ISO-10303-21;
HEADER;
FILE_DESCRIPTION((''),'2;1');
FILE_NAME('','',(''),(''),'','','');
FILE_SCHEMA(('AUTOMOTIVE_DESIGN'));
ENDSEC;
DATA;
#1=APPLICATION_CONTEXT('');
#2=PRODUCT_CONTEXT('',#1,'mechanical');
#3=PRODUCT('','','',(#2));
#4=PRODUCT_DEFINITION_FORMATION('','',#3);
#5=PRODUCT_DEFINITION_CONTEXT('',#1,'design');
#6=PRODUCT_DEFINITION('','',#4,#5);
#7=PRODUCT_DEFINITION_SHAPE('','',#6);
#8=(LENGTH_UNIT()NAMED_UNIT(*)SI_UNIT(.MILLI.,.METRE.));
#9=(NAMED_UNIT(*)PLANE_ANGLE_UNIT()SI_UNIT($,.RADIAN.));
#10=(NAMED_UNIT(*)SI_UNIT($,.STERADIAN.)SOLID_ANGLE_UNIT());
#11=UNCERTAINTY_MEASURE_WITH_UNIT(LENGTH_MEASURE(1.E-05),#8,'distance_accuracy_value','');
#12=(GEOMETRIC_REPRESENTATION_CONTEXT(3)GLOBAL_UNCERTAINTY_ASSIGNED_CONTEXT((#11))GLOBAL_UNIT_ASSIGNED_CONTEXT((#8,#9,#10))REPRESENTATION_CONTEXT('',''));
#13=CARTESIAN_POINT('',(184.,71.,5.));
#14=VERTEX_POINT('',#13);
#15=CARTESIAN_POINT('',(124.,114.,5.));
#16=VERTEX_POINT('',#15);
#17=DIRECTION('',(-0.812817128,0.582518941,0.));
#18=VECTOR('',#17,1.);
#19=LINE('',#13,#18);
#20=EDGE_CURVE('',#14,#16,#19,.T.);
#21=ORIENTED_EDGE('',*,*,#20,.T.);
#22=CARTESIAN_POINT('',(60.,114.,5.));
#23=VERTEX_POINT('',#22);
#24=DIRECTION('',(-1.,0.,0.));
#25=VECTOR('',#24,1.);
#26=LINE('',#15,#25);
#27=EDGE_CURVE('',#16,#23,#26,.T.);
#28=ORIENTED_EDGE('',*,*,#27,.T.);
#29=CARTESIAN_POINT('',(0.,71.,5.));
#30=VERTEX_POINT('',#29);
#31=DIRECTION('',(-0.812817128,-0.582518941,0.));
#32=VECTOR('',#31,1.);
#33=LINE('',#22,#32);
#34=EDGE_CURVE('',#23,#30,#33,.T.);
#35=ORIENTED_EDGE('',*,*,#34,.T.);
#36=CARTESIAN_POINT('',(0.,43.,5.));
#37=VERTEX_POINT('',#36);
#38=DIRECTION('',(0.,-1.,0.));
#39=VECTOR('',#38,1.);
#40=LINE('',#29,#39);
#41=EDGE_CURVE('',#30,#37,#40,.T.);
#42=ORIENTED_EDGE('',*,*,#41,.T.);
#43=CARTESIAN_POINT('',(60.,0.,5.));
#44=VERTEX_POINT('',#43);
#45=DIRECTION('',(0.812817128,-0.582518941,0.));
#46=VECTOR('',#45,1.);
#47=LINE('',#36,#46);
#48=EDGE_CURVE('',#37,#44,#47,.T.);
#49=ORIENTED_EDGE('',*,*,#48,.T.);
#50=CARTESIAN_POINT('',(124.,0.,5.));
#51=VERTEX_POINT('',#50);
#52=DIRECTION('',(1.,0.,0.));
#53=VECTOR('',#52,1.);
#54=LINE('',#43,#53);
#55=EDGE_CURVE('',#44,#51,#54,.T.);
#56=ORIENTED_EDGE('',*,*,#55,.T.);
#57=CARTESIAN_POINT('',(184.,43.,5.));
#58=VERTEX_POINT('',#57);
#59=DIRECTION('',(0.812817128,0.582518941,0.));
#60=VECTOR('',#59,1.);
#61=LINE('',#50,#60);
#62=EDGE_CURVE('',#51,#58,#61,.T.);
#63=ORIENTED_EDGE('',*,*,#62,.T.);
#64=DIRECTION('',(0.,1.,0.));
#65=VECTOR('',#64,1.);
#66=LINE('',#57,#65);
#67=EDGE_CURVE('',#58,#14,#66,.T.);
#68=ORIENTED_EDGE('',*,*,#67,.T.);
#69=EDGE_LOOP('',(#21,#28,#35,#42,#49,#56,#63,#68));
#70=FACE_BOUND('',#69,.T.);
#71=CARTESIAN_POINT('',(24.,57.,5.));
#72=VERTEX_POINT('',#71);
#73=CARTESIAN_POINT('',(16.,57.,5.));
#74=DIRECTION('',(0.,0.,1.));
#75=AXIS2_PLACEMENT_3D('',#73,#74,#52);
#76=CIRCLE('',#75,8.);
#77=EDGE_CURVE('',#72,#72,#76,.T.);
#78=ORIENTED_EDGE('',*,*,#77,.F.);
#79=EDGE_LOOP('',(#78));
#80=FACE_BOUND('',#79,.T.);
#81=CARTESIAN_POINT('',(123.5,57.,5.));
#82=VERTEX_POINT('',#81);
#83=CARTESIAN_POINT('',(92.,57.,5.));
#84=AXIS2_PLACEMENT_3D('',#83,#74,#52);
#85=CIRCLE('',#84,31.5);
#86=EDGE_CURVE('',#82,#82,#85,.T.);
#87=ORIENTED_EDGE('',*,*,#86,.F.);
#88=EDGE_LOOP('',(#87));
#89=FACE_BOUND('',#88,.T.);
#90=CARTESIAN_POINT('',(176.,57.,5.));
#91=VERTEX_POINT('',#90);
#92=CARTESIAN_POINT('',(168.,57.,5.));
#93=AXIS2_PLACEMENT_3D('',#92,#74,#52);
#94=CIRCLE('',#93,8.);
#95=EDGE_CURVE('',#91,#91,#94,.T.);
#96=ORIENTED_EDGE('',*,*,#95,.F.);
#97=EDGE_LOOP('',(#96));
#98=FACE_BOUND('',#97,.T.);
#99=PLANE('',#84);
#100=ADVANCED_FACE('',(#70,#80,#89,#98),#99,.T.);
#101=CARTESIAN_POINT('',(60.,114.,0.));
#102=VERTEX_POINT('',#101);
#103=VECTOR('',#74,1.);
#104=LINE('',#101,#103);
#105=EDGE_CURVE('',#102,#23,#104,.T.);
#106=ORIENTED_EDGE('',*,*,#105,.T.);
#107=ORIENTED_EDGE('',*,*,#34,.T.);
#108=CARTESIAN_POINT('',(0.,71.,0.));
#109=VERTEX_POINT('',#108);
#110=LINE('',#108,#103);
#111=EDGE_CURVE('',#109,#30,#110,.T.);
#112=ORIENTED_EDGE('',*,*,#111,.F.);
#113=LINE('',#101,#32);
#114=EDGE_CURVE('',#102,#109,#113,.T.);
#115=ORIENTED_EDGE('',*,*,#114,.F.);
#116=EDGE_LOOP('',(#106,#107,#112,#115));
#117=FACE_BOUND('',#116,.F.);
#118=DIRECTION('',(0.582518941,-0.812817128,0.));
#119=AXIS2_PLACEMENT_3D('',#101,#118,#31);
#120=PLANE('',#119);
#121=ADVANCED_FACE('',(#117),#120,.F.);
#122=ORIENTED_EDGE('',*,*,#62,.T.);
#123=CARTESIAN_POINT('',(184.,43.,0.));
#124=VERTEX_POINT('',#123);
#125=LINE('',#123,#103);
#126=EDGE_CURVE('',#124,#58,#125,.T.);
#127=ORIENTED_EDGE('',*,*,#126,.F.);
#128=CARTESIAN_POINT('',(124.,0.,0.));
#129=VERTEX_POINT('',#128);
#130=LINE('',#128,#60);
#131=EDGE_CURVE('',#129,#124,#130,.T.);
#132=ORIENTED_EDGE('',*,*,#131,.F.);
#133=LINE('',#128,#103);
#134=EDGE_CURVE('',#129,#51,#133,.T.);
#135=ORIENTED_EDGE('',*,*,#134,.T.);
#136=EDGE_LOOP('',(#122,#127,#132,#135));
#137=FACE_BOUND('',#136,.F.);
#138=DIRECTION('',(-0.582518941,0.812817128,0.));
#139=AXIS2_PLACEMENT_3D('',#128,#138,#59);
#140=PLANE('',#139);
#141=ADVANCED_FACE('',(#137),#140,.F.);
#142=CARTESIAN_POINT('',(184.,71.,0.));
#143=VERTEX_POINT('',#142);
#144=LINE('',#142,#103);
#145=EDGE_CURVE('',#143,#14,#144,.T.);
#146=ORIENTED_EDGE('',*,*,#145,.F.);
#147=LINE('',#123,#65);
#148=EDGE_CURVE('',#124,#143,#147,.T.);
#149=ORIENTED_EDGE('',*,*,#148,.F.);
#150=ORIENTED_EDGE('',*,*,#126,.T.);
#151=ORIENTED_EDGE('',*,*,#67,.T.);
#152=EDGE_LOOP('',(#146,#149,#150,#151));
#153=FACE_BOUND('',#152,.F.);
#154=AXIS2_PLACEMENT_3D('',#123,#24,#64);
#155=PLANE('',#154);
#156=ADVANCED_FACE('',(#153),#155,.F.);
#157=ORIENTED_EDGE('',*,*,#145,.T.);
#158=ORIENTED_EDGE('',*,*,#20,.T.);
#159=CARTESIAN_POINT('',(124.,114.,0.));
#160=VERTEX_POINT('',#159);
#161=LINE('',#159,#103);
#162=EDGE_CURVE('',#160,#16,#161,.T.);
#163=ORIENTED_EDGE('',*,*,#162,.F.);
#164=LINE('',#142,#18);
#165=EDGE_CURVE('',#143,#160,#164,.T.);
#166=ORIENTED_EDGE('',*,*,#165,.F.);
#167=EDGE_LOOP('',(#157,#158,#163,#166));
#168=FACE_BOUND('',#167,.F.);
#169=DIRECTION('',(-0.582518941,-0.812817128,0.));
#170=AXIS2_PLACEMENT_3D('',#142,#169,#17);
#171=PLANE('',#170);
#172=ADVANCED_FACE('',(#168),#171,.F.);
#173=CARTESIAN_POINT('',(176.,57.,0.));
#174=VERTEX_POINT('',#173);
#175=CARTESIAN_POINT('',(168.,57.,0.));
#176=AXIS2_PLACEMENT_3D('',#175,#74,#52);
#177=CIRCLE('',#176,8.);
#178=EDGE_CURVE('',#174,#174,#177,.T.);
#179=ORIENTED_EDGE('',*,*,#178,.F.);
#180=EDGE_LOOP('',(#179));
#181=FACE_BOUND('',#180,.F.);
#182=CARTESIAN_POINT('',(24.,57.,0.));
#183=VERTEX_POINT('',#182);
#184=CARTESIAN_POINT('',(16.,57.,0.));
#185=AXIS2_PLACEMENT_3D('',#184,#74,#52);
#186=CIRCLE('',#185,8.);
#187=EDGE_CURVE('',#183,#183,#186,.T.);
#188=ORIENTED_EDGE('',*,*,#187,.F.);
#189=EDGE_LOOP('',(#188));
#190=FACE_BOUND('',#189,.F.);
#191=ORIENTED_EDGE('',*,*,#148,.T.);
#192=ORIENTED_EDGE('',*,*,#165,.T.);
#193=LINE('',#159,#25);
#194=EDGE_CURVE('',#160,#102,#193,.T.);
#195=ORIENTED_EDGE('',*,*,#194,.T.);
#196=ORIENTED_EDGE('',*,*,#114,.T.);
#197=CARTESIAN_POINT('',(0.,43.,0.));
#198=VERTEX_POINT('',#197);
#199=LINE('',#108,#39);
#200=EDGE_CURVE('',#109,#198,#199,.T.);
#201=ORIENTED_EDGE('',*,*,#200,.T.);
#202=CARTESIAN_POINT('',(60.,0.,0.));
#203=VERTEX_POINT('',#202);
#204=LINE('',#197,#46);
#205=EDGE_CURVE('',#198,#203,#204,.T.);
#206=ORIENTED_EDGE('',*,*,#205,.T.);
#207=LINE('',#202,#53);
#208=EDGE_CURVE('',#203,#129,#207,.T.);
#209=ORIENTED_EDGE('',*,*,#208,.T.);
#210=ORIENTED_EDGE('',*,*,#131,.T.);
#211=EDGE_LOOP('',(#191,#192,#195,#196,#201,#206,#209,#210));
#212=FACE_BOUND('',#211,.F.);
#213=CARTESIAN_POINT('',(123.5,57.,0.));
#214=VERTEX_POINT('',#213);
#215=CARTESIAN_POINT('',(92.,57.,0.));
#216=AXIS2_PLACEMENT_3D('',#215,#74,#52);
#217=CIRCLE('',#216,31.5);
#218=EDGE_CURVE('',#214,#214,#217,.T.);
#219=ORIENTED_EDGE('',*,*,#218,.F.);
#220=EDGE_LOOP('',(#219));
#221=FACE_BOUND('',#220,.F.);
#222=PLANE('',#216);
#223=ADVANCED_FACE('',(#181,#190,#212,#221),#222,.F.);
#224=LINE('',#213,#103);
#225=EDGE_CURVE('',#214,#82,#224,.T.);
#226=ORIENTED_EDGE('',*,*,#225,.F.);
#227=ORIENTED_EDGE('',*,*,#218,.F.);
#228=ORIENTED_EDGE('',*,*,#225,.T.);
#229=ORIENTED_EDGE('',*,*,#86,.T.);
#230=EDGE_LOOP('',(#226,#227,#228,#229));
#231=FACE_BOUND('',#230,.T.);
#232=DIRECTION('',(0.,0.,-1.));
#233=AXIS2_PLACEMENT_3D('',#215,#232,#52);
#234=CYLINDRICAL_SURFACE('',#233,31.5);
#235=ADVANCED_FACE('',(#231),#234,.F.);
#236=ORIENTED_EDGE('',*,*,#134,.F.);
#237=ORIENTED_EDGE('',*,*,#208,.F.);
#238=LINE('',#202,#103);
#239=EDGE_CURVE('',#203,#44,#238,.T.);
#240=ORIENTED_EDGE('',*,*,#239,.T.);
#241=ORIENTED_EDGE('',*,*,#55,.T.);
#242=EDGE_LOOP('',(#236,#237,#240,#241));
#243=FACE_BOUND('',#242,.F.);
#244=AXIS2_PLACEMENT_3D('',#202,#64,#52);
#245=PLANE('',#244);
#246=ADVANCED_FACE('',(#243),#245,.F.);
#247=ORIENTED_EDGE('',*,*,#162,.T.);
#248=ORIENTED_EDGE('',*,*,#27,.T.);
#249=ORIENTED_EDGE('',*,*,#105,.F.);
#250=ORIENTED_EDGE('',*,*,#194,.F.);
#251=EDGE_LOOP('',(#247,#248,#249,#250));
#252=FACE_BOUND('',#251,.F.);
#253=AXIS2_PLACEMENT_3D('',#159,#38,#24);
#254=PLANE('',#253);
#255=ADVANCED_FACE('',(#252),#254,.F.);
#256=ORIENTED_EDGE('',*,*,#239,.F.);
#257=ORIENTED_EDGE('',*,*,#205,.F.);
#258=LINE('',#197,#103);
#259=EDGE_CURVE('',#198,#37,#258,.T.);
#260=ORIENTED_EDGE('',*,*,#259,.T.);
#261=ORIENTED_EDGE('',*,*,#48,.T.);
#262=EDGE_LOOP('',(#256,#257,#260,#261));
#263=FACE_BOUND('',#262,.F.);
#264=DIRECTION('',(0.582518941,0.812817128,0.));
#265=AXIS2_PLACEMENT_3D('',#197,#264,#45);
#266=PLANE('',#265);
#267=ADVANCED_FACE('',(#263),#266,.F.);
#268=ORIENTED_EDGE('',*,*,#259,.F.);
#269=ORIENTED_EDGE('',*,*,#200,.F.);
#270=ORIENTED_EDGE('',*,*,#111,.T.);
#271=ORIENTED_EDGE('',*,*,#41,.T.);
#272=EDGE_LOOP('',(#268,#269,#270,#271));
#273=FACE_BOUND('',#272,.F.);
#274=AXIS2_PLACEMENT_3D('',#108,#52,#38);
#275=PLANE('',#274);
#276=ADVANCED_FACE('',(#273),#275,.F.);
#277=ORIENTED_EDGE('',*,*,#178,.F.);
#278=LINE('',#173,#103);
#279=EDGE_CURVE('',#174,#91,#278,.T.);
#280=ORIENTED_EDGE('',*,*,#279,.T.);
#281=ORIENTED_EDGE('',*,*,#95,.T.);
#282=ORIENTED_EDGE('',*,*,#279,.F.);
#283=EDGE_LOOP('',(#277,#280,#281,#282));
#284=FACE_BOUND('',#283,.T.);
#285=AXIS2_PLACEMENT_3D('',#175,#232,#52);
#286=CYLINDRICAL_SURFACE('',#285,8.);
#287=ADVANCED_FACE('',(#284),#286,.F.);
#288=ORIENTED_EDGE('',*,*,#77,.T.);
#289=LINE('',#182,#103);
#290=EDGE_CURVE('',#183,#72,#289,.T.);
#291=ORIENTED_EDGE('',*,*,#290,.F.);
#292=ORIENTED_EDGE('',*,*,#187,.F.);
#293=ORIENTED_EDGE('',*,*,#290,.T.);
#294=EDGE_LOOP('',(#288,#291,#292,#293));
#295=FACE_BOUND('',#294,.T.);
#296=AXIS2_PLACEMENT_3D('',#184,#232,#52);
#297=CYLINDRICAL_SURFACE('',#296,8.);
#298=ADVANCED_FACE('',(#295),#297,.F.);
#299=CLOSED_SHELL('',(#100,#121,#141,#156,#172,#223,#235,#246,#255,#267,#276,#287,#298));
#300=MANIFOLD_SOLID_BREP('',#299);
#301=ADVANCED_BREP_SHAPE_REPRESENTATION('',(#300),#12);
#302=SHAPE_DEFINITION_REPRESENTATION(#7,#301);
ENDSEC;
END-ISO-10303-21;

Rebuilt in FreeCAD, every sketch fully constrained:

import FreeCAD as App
import Part
import Sketcher

V = App.Vector
Q = App.Units.Quantity


def add_polygon(sketch, points):
    """Adds a closed chain of lines whose ends are joined by coincident constraints."""
    first, n = sketch.GeometryCount, len(points)
    for a, b in zip(points, points[1:] + points[:1]):
        sketch.addGeometry(Part.LineSegment(App.Vector(*a, 0), App.Vector(*b, 0)), False)
    for i in range(n):
        sketch.addConstraint(Sketcher.Constraint("Coincident", first + i, 2, first + (i + 1) % n, 1))

doc = App.newDocument("Part")
params = doc.addObject("Spreadsheet::Sheet", "Params")
for row, (alias, value) in enumerate([
    ("sketch1_diameter", "16 mm"),
    ("sketch1_diameter2", "63 mm"),
    ("sketch1_width", "64 mm"),
    ("sketch1_height", "28 mm"),
    ("pad1_length", "5 mm"),
], start=1):
    params.set(f"A{row}", alias)
    params.set(f"B{row}", "=" + value)
    params.setAlias(f"B{row}", alias)

body = doc.addObject("PartDesign::Body", "Body")

# Sketch on XY plane
sketch1 = doc.addObject("Sketcher::SketchObject", "Sketch")
body.addObject(sketch1)
sketch1.AttachmentSupport = (doc.XY_Plane, [""])
sketch1.MapMode = "FlatFace"
add_polygon(sketch1, [(0, 43), (60, 0), (124, 0), (184, 43), (184, 71), (124, 114), (60, 114), (0, 71)])  # lines 0-7
sketch1.addGeometry(Part.Circle(V(16, 57, 0), V(0, 0, 1), 8), False)  # 8
sketch1.addGeometry(Part.Circle(V(92, 57, 0), V(0, 0, 1), 32), False)  # 9
sketch1.addGeometry(Part.Circle(V(168, 57, 0), V(0, 0, 1), 8), False)  # 10
sketch1.addConstraint([
    Sketcher.Constraint("Horizontal", 1),
    Sketcher.Constraint("Vertical", 3),
    Sketcher.Constraint("Horizontal", 5),
    Sketcher.Constraint("Vertical", 7),
    Sketcher.Constraint("Equal", 8, 10),
    Sketcher.Constraint("PointOnObject", 0, 2, -1),
    Sketcher.Constraint("PointOnObject", 6, 2, -2),
    Sketcher.Constraint("Parallel", 0, 4),
    Sketcher.Constraint("Parallel", 2, 6),
    Sketcher.Constraint("Horizontal", 8, 3, 9, 3),
    Sketcher.Constraint("Horizontal", 9, 3, 10, 3),
    Sketcher.Constraint("Horizontal", 3, 2, 6, 2),
    Sketcher.Constraint("Horizontal", 2, 2, 7, 2),
    Sketcher.Constraint("Vertical", 1, 2, 4, 2),
    Sketcher.Constraint("Vertical", 0, 2, 5, 2),
    Sketcher.Constraint("Diameter", 8, Q("16 mm")),
    Sketcher.Constraint("Diameter", 9, Q("63 mm")),
    Sketcher.Constraint("DistanceX", 1, 1, 1, 2, Q("64 mm")),
    Sketcher.Constraint("DistanceY", 3, 1, 3, 2, Q("28 mm")),
    Sketcher.Constraint("DistanceX", -1, 1, 8, 3, Q("16 mm")),
    Sketcher.Constraint("DistanceY", -1, 1, 8, 3, Q("57 mm")),
    Sketcher.Constraint("DistanceX", -1, 1, 9, 3, Q("92 mm")),
    Sketcher.Constraint("DistanceX", -1, 1, 10, 3, Q("168 mm")),
    Sketcher.Constraint("DistanceX", -1, 1, 0, 2, Q("60 mm")),
    Sketcher.Constraint("DistanceY", -1, 1, 2, 2, Q("43 mm")),
])
sketch1.setExpression("Constraints[23]", "Params.sketch1_diameter")
sketch1.setExpression("Constraints[24]", "Params.sketch1_diameter2")
sketch1.setExpression("Constraints[25]", "Params.sketch1_width")
sketch1.setExpression("Constraints[26]", "Params.sketch1_height")
pad1 = doc.addObject("PartDesign::Pad", "Pad")
body.addObject(pad1)
pad1.Profile = sketch1
pad1.setExpression("Length", "Params.pad1_length")

doc.recompute()
